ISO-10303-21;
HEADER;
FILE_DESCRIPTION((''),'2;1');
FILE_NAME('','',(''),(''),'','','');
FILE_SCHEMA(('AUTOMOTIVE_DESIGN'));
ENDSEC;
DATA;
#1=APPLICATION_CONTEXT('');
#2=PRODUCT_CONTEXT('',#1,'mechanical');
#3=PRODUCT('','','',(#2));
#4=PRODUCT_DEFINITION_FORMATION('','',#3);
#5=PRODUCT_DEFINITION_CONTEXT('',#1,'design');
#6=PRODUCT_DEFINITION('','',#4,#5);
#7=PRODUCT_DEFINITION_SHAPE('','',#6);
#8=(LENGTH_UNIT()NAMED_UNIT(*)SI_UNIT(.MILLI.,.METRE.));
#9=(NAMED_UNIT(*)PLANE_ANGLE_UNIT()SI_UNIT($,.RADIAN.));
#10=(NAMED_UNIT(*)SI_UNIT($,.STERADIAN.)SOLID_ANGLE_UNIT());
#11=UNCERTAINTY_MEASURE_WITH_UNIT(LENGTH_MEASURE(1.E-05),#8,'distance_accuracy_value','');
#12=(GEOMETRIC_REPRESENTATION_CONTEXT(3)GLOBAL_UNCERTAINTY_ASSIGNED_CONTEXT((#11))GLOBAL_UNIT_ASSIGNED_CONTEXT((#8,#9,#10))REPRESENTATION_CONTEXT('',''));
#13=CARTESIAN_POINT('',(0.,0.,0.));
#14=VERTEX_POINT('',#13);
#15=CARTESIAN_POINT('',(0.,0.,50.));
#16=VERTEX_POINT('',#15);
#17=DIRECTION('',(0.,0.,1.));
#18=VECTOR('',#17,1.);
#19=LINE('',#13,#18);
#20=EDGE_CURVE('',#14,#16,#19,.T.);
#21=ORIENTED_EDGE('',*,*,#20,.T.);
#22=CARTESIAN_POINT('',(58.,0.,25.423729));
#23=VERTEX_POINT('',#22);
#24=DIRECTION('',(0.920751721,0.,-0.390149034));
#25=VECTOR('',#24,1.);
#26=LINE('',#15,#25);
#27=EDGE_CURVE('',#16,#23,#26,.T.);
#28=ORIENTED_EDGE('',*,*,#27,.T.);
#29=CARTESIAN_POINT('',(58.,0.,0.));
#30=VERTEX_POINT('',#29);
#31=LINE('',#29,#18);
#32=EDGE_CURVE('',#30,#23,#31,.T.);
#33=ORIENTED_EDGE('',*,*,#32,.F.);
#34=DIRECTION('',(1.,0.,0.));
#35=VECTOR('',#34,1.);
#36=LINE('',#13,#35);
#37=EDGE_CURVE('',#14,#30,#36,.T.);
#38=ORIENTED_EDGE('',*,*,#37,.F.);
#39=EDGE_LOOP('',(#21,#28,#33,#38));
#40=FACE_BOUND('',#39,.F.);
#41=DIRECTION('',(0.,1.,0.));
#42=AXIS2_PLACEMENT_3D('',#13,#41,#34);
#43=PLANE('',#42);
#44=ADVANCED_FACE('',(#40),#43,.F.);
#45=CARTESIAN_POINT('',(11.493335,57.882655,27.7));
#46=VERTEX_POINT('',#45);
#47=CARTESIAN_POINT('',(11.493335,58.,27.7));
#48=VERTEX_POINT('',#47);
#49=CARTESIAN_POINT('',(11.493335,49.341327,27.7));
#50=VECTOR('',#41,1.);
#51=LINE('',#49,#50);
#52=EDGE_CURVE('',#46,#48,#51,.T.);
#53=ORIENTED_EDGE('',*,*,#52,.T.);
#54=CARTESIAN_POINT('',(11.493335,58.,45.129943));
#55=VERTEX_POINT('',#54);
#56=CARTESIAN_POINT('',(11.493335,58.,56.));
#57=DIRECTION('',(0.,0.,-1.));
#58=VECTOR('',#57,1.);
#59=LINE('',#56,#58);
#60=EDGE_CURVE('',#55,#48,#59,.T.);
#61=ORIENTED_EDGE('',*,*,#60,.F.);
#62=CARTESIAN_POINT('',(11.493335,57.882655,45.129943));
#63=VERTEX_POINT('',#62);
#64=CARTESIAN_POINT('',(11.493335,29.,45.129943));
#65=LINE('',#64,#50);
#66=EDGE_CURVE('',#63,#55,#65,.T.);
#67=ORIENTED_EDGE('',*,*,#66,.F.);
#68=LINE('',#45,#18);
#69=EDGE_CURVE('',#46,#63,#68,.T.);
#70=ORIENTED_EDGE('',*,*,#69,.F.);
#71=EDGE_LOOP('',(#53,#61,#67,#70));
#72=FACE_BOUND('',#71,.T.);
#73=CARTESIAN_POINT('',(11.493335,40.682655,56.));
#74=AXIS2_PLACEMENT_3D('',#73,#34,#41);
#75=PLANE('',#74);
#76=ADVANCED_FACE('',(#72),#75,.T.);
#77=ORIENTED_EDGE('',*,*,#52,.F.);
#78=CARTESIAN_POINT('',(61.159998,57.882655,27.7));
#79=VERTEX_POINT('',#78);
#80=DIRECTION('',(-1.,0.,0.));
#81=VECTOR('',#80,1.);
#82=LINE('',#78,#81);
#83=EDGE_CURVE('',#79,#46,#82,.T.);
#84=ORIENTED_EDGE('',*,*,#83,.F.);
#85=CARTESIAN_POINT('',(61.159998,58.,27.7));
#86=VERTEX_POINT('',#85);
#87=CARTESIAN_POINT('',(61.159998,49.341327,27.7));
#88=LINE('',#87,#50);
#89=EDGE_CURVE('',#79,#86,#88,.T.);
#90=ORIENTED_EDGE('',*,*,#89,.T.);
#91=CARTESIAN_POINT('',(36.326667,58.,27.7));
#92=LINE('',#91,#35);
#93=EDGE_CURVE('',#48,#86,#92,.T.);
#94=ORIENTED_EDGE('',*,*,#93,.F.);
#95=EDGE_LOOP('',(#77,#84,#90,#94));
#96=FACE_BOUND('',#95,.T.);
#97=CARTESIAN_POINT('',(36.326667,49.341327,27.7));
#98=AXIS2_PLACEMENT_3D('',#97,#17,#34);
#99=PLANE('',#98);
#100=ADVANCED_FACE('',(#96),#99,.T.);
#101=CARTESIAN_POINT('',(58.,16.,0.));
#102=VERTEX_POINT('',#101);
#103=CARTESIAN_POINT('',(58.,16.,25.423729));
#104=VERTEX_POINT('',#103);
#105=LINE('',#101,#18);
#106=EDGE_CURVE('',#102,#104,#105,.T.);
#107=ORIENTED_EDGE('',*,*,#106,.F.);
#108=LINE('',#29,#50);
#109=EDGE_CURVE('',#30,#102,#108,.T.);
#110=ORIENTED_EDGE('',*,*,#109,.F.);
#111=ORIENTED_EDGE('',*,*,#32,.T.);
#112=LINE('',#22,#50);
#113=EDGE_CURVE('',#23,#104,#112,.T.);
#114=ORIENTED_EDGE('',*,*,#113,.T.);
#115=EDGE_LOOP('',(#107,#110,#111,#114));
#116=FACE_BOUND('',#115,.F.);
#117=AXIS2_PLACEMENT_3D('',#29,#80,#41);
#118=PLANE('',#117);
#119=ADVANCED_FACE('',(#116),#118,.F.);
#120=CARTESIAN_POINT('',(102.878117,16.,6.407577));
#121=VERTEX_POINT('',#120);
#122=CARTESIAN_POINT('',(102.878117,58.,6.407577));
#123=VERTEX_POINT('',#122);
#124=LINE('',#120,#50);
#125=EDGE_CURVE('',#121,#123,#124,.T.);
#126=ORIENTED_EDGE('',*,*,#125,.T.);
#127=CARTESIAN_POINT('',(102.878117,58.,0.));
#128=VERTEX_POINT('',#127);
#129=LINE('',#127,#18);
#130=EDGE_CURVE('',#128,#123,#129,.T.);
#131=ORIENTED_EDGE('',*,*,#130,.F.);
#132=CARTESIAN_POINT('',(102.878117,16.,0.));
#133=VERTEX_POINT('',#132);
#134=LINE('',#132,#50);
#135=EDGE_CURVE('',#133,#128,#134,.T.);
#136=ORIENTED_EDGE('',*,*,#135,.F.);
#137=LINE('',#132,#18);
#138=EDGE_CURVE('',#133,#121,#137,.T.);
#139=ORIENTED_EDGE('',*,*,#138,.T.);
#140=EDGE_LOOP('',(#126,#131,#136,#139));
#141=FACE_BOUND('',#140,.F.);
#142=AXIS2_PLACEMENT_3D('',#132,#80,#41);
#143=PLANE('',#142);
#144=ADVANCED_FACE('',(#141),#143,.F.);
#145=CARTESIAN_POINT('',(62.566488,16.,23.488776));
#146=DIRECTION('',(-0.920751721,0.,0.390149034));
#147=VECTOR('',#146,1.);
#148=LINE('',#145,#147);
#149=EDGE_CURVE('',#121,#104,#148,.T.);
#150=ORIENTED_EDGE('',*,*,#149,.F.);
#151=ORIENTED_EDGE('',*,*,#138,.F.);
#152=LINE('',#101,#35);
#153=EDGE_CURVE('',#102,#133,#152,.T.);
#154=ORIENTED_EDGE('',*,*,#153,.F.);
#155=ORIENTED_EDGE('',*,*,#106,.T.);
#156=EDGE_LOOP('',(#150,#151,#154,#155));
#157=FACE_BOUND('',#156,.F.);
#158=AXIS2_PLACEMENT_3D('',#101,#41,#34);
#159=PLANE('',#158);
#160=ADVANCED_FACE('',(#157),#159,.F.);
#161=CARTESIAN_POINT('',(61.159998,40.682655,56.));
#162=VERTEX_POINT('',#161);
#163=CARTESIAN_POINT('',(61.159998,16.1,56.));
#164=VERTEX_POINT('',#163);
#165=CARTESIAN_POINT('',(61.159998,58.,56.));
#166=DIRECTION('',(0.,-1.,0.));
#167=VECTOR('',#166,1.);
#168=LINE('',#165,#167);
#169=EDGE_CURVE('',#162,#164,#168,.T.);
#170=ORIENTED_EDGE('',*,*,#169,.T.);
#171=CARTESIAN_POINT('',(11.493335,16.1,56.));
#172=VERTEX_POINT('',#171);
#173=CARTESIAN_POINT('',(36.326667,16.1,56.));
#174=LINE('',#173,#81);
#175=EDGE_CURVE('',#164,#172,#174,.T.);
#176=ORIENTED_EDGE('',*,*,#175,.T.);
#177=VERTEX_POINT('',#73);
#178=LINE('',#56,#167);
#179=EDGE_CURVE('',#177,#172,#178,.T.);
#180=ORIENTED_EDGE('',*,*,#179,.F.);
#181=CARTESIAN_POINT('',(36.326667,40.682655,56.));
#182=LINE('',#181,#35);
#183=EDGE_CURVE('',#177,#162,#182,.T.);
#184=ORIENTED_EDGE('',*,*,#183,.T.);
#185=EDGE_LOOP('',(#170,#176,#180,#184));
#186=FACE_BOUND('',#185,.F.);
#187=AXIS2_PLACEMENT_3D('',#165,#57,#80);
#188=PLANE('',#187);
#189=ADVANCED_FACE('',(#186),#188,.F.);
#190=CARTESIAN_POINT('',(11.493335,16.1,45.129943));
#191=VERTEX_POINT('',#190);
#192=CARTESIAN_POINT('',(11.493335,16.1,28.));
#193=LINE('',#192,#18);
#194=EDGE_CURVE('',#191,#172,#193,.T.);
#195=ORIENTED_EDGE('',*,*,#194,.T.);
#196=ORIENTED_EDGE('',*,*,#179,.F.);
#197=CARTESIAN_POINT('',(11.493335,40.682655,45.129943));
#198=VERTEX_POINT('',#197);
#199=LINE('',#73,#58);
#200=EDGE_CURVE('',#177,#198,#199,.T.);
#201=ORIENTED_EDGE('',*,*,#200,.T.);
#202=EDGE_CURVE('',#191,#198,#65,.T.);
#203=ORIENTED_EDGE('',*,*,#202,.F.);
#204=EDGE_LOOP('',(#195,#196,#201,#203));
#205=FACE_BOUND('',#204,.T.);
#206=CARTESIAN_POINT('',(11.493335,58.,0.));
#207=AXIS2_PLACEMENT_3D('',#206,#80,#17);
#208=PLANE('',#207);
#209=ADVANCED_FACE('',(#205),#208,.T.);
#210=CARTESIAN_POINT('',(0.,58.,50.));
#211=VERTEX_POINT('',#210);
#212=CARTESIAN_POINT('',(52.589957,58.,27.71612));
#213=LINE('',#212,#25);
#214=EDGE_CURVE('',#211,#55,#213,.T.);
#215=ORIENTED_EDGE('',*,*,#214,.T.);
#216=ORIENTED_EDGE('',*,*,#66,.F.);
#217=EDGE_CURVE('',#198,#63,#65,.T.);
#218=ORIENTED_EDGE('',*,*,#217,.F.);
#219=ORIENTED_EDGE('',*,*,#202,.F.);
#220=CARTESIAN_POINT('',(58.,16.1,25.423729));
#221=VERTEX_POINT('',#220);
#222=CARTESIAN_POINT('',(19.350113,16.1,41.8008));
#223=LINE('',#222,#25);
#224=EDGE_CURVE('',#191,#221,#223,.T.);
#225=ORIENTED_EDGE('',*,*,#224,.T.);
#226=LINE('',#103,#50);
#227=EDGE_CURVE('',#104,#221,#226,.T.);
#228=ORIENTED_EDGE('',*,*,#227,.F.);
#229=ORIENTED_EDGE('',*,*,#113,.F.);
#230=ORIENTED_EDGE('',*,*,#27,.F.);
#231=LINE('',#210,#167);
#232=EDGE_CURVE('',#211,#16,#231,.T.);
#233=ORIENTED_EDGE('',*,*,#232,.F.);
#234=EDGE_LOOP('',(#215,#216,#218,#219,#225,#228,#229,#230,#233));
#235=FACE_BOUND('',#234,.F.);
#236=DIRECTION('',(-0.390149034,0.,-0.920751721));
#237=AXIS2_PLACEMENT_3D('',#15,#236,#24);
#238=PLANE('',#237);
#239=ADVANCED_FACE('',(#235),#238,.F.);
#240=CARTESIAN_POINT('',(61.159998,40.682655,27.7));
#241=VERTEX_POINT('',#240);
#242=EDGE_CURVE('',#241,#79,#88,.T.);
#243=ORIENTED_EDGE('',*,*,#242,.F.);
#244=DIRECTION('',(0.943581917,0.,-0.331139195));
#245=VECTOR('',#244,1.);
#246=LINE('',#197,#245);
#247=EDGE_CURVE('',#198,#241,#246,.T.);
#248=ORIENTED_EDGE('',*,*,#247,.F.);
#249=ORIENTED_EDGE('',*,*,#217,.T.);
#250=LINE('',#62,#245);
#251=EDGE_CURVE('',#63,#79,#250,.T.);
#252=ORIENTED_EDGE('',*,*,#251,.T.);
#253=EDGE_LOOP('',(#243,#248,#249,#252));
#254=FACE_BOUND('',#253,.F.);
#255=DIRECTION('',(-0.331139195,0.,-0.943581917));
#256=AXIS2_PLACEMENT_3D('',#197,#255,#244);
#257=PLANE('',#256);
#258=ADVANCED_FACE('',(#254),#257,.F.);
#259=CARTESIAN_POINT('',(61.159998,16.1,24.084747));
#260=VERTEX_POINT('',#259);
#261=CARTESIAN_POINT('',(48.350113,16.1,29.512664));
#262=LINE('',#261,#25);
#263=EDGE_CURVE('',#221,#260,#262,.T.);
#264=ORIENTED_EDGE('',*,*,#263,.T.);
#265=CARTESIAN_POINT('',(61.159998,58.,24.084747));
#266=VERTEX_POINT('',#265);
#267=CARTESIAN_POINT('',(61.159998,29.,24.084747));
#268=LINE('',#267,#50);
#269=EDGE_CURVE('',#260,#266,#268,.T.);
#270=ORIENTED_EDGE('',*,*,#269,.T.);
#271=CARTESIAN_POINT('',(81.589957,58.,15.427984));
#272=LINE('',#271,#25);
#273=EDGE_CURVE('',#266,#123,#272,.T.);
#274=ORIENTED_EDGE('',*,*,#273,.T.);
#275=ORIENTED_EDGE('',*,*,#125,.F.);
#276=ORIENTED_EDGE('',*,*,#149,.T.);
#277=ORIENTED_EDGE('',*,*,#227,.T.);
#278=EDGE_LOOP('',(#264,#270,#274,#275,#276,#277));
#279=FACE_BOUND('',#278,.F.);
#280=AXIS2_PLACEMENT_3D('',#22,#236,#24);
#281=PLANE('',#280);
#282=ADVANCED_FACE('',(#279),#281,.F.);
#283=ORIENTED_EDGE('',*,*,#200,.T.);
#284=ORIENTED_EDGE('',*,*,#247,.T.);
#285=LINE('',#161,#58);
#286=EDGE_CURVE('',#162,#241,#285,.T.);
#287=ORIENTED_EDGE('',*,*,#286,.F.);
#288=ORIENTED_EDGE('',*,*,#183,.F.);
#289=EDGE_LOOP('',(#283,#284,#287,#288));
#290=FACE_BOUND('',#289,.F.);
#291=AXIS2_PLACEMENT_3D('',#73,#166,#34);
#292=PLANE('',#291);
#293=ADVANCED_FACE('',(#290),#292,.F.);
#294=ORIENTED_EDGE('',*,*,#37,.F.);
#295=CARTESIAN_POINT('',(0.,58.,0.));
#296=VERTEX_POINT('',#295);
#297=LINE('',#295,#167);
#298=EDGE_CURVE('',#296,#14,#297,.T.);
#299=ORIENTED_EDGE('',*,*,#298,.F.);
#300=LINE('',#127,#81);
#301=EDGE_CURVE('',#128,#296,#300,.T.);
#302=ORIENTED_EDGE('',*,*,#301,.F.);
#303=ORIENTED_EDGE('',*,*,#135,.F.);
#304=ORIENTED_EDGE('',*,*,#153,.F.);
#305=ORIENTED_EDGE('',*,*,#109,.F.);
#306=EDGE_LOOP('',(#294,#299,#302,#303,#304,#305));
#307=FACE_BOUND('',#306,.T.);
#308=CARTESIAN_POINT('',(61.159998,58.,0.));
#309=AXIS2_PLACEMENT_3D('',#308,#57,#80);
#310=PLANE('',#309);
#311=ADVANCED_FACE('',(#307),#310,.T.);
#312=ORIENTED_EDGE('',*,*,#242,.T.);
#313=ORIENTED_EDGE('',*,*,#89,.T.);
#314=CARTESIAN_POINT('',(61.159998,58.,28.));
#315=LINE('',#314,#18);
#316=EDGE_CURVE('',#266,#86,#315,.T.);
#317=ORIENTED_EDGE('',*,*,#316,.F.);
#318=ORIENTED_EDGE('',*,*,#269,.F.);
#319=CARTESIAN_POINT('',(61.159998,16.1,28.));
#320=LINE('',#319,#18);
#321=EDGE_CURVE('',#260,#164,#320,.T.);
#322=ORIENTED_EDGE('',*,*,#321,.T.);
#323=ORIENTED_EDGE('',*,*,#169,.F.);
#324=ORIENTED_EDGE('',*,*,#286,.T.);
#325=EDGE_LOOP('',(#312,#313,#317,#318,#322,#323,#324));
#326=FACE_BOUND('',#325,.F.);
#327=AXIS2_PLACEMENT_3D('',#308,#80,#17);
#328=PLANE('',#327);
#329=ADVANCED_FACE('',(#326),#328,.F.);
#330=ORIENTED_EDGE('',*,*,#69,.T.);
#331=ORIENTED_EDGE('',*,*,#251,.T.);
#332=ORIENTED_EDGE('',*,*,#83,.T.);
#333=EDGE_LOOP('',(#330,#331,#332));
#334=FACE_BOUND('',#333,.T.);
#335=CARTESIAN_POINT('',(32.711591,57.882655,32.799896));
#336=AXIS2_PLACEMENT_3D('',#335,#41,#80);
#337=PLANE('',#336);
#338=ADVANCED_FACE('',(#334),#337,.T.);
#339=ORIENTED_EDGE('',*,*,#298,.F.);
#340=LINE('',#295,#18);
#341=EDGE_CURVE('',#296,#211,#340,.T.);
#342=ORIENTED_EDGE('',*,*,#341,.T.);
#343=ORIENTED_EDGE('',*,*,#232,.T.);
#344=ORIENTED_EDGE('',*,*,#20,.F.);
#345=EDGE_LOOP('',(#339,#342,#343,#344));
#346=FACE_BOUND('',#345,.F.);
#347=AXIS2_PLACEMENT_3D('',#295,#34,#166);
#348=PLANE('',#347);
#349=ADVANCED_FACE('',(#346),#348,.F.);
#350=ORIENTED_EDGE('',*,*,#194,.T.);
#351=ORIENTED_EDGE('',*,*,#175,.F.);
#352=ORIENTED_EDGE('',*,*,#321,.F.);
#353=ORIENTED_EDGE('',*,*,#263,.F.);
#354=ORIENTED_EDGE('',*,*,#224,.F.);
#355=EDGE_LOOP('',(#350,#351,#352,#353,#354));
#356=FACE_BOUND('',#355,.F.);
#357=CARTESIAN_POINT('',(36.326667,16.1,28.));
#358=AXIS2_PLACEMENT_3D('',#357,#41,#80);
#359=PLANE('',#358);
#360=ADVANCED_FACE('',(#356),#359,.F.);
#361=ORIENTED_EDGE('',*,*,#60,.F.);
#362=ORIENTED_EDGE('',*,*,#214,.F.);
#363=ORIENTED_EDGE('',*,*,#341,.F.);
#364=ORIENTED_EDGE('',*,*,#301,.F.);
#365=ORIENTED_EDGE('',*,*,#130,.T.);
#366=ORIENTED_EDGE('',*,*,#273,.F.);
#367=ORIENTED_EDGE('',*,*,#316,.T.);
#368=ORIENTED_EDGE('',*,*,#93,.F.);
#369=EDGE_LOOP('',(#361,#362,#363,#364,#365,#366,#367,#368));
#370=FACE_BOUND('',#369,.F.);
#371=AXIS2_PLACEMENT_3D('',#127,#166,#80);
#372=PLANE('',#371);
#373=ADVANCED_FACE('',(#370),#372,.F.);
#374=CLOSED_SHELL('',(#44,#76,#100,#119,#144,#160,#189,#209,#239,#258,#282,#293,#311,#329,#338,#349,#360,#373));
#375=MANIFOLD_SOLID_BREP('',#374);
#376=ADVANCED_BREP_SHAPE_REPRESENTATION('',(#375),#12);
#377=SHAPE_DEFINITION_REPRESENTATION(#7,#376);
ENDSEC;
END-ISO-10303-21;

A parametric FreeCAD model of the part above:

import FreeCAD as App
import Part
import Sketcher

V = App.Vector
Q = App.Units.Quantity


def add_polygon(sketch, points):
    """Adds a closed chain of lines whose ends are joined by coincident constraints."""
    first, n = sketch.GeometryCount, len(points)
    for a, b in zip(points, points[1:] + points[:1]):
        sketch.addGeometry(Part.LineSegment(App.Vector(*a, 0), App.Vector(*b, 0)), False)
    for i in range(n):
        sketch.addConstraint(Sketcher.Constraint("Coincident", first + i, 2, first + (i + 1) % n, 1))

doc = App.newDocument("Part")
body = doc.addObject("PartDesign::Body", "Body")

# Sketch on XY plane
sketch1 = body.newObject("Sketcher::SketchObject", "Sketch")
sketch1.AttachmentSupport = (doc.getObject("XY_Plane"), [""])
sketch1.MapMode = "FlatFace"
add_polygon(sketch1, [(103, 58), (0, 58), (0, 0), (58, 0), (58, 16), (103, 16)])  # lines 0-5
sketch1.addConstraint(Sketcher.Constraint("Horizontal", 0))
sketch1.addConstraint(Sketcher.Constraint("Vertical", 1))
sketch1.addConstraint(Sketcher.Constraint("Horizontal", 2))
sketch1.addConstraint(Sketcher.Constraint("Vertical", 3))
sketch1.addConstraint(Sketcher.Constraint("Horizontal", 4))
sketch1.addConstraint(Sketcher.Constraint("Vertical", 5))
sketch1.addConstraint(Sketcher.Constraint("Coincident", 1, 2, -1, 1))
sketch1.addConstraint(Sketcher.Constraint("Equal", 2, 1))
sketch1.addConstraint(Sketcher.Constraint("DistanceX", 2, 1, 2, 2, Q("58 mm")))
sketch1.addConstraint(Sketcher.Constraint("DistanceY", 3, 1, 3, 2, Q("16 mm")))
sketch1.addConstraint(Sketcher.Constraint("DistanceX", 0, 2, 0, 1, Q("102.878117 mm")))
pad1 = body.newObject("PartDesign::Pad", "Pad")
pad1.Profile = sketch1
pad1.Length = 50

# Sketch on XZ plane
sketch2 = body.newObject("Sketcher::SketchObject", "Sketch001")
sketch2.AttachmentSupport = (doc.getObject("XZ_Plane"), [""])
sketch2.MapMode = "FlatFace"
add_polygon(sketch2, [(0, 50), (58, 25), (118, 0), (103, 50)])  # lines 0-3
sketch2.addConstraint(Sketcher.Constraint("Horizontal", 3))
sketch2.addConstraint(Sketcher.Constraint("PointOnObject", 1, 2, -1))
sketch2.addConstraint(Sketcher.Constraint("PointOnObject", 3, 2, -2))
sketch2.addConstraint(Sketcher.Constraint("Parallel", 0, 1))
sketch2.addConstraint(Sketcher.Constraint("DistanceX", -1, 1, 0, 2, Q("58 mm")))
sketch2.addConstraint(Sketcher.Constraint("DistanceX", -1, 1, 1, 2, Q("118 mm")))
sketch2.addConstraint(Sketcher.Constraint("DistanceY", -1, 1, 2, 2, Q("50 mm")))
sketch2.addConstraint(Sketcher.Constraint("DistanceX", 3, 2, 3, 1, Q("102.901399 mm")))
pocket1 = body.newObject("PartDesign::Pocket", "Pocket")
pocket1.Profile = sketch2
pocket1.Length = 81.2

# Sketch on XZ plane
sketch3 = body.newObject("Sketcher::SketchObject", "Sketch002")
sketch3.AttachmentSupport = (doc.getObject("XZ_Plane"), [""])
sketch3.MapMode = "FlatFace"
add_polygon(sketch3, [(58, 50), (58, 25), (118, 0), (103, 50)])  # lines 0-3
sketch3.addConstraint(Sketcher.Constraint("Vertical", 0))
sketch3.addConstraint(Sketcher.Constraint("Horizontal", 3))
sketch3.addConstraint(Sketcher.Constraint("PointOnObject", 1, 2, -1))
sketch3.addConstraint(Sketcher.Constraint("DistanceX", -1, 1, 0, 2, Q("58 mm")))
sketch3.addConstraint(Sketcher.Constraint("DistanceX", -1, 1, 1, 2, Q("118 mm")))
sketch3.addConstraint(Sketcher.Constraint("DistanceY", -1, 1, 2, 2, Q("50 mm")))
sketch3.addConstraint(Sketcher.Constraint("DistanceX", 3, 2, 3, 1, Q("44.901399 mm")))
sketch3.addConstraint(Sketcher.Constraint("DistanceY", 0, 2, 0, 1, Q("24.576271 mm")))
pocket2 = body.newObject("PartDesign::Pocket", "Pocket001")
pocket2.Profile = sketch3
pocket2.Length = 25

# Sketch on XZ plane
sketch4 = body.newObject("Sketcher::SketchObject", "Sketch003")
sketch4.AttachmentSupport = (doc.getObject("XZ_Plane"), [""])
sketch4.MapMode = "FlatFace"
sketch4.AttachmentOffset = App.Placement(V(0, 0, -58), App.Rotation())
add_polygon(sketch4, [(61, 56), (61, 0), (11, 0), (11, 56)])  # lines 0-3
sketch4.addConstraint(Sketcher.Constraint("Vertical", 0))
sketch4.addConstraint(Sketcher.Constraint("Horizontal", 1))
sketch4.addConstraint(Sketcher.Constraint("Vertical", 2))
sketch4.addConstraint(Sketcher.Constraint("Horizontal", 3))
sketch4.addConstraint(Sketcher.Constraint("PointOnObject", 0, 2, -1))
sketch4.addConstraint(Sketcher.Constraint("DistanceY", 0, 2, 0, 1, Q("56 mm")))
sketch4.addConstraint(Sketcher.Constraint("DistanceX", -1, 1, 0, 2, Q("61.159998 mm")))
sketch4.addConstraint(Sketcher.Constraint("DistanceX", 1, 2, 1, 1, Q("49.666663 mm")))
pad2 = body.newObject("PartDesign::Pad", "Pad001")
pad2.Profile = sketch4
pad2.Length = 41.9

# Sketch on XY plane
sketch5 = body.newObject("Sketcher::SketchObject", "Sketch004")
sketch5.AttachmentSupport = (doc.getObject("XY_Plane"), [""])
sketch5.MapMode = "FlatFace"
sketch5.AttachmentOffset = App.Placement(V(0, 0, 56), App.Rotation())
add_polygon(sketch5, [(11, 58), (11, 41), (61, 41), (61, 58)])  # lines 0-3
sketch5.addConstraint(Sketcher.Constraint("Vertical", 0))
sketch5.addConstraint(Sketcher.Constraint("Horizontal", 1))
sketch5.addConstraint(Sketcher.Constraint("Vertical", 2))
sketch5.addConstraint(Sketcher.Constraint("Horizontal", 3))
sketch5.addConstraint(Sketcher.Constraint("DistanceY", -1, 1, 2, 2, Q("58 mm")))
sketch5.addConstraint(Sketcher.Constraint("DistanceX", -1, 1, 1, 2, Q("61.159998 mm")))
sketch5.addConstraint(Sketcher.Constraint("DistanceX", 1, 1, 1, 2, Q("49.666663 mm")))
sketch5.addConstraint(Sketcher.Constraint("DistanceY", 0, 2, 0, 1, Q("17.317345 mm")))
pocket3 = body.newObject("PartDesign::Pocket", "Pocket002")
pocket3.Profile = sketch5
pocket3.Length = 28.3

# Sketch on XZ plane
sketch6 = body.newObject("Sketcher::SketchObject", "Sketch005")
sketch6.AttachmentSupport = (doc.getObject("XZ_Plane"), [""])
sketch6.MapMode = "FlatFace"
sketch6.AttachmentOffset = App.Placement(V(0, 0, -40.682655), App.Rotation())
add_polygon(sketch6, [(11, 45), (61, 28), (11, 28)])  # lines 0-2
sketch6.addConstraint(Sketcher.Constraint("Horizontal", 1))
sketch6.addConstraint(Sketcher.Constraint("Vertical", 2))
sketch6.addConstraint(Sketcher.Constraint("DistanceY", -1, 1, 0, 2, Q("27.7 mm")))
sketch6.addConstraint(Sketcher.Constraint("DistanceX", -1, 1, 0, 2, Q("61.159998 mm")))
sketch6.addConstraint(Sketcher.Constraint("DistanceX", 1, 2, 1, 1, Q("49.666663 mm")))
sketch6.addConstraint(Sketcher.Constraint("DistanceY", 2, 1, 2, 2, Q("17.429943 mm")))
pad3 = body.newObject("PartDesign::Pad", "Pad002")
pad3.Profile = sketch6
pad3.Length = 17.2
pad3.Reversed = True

doc.recompute()
